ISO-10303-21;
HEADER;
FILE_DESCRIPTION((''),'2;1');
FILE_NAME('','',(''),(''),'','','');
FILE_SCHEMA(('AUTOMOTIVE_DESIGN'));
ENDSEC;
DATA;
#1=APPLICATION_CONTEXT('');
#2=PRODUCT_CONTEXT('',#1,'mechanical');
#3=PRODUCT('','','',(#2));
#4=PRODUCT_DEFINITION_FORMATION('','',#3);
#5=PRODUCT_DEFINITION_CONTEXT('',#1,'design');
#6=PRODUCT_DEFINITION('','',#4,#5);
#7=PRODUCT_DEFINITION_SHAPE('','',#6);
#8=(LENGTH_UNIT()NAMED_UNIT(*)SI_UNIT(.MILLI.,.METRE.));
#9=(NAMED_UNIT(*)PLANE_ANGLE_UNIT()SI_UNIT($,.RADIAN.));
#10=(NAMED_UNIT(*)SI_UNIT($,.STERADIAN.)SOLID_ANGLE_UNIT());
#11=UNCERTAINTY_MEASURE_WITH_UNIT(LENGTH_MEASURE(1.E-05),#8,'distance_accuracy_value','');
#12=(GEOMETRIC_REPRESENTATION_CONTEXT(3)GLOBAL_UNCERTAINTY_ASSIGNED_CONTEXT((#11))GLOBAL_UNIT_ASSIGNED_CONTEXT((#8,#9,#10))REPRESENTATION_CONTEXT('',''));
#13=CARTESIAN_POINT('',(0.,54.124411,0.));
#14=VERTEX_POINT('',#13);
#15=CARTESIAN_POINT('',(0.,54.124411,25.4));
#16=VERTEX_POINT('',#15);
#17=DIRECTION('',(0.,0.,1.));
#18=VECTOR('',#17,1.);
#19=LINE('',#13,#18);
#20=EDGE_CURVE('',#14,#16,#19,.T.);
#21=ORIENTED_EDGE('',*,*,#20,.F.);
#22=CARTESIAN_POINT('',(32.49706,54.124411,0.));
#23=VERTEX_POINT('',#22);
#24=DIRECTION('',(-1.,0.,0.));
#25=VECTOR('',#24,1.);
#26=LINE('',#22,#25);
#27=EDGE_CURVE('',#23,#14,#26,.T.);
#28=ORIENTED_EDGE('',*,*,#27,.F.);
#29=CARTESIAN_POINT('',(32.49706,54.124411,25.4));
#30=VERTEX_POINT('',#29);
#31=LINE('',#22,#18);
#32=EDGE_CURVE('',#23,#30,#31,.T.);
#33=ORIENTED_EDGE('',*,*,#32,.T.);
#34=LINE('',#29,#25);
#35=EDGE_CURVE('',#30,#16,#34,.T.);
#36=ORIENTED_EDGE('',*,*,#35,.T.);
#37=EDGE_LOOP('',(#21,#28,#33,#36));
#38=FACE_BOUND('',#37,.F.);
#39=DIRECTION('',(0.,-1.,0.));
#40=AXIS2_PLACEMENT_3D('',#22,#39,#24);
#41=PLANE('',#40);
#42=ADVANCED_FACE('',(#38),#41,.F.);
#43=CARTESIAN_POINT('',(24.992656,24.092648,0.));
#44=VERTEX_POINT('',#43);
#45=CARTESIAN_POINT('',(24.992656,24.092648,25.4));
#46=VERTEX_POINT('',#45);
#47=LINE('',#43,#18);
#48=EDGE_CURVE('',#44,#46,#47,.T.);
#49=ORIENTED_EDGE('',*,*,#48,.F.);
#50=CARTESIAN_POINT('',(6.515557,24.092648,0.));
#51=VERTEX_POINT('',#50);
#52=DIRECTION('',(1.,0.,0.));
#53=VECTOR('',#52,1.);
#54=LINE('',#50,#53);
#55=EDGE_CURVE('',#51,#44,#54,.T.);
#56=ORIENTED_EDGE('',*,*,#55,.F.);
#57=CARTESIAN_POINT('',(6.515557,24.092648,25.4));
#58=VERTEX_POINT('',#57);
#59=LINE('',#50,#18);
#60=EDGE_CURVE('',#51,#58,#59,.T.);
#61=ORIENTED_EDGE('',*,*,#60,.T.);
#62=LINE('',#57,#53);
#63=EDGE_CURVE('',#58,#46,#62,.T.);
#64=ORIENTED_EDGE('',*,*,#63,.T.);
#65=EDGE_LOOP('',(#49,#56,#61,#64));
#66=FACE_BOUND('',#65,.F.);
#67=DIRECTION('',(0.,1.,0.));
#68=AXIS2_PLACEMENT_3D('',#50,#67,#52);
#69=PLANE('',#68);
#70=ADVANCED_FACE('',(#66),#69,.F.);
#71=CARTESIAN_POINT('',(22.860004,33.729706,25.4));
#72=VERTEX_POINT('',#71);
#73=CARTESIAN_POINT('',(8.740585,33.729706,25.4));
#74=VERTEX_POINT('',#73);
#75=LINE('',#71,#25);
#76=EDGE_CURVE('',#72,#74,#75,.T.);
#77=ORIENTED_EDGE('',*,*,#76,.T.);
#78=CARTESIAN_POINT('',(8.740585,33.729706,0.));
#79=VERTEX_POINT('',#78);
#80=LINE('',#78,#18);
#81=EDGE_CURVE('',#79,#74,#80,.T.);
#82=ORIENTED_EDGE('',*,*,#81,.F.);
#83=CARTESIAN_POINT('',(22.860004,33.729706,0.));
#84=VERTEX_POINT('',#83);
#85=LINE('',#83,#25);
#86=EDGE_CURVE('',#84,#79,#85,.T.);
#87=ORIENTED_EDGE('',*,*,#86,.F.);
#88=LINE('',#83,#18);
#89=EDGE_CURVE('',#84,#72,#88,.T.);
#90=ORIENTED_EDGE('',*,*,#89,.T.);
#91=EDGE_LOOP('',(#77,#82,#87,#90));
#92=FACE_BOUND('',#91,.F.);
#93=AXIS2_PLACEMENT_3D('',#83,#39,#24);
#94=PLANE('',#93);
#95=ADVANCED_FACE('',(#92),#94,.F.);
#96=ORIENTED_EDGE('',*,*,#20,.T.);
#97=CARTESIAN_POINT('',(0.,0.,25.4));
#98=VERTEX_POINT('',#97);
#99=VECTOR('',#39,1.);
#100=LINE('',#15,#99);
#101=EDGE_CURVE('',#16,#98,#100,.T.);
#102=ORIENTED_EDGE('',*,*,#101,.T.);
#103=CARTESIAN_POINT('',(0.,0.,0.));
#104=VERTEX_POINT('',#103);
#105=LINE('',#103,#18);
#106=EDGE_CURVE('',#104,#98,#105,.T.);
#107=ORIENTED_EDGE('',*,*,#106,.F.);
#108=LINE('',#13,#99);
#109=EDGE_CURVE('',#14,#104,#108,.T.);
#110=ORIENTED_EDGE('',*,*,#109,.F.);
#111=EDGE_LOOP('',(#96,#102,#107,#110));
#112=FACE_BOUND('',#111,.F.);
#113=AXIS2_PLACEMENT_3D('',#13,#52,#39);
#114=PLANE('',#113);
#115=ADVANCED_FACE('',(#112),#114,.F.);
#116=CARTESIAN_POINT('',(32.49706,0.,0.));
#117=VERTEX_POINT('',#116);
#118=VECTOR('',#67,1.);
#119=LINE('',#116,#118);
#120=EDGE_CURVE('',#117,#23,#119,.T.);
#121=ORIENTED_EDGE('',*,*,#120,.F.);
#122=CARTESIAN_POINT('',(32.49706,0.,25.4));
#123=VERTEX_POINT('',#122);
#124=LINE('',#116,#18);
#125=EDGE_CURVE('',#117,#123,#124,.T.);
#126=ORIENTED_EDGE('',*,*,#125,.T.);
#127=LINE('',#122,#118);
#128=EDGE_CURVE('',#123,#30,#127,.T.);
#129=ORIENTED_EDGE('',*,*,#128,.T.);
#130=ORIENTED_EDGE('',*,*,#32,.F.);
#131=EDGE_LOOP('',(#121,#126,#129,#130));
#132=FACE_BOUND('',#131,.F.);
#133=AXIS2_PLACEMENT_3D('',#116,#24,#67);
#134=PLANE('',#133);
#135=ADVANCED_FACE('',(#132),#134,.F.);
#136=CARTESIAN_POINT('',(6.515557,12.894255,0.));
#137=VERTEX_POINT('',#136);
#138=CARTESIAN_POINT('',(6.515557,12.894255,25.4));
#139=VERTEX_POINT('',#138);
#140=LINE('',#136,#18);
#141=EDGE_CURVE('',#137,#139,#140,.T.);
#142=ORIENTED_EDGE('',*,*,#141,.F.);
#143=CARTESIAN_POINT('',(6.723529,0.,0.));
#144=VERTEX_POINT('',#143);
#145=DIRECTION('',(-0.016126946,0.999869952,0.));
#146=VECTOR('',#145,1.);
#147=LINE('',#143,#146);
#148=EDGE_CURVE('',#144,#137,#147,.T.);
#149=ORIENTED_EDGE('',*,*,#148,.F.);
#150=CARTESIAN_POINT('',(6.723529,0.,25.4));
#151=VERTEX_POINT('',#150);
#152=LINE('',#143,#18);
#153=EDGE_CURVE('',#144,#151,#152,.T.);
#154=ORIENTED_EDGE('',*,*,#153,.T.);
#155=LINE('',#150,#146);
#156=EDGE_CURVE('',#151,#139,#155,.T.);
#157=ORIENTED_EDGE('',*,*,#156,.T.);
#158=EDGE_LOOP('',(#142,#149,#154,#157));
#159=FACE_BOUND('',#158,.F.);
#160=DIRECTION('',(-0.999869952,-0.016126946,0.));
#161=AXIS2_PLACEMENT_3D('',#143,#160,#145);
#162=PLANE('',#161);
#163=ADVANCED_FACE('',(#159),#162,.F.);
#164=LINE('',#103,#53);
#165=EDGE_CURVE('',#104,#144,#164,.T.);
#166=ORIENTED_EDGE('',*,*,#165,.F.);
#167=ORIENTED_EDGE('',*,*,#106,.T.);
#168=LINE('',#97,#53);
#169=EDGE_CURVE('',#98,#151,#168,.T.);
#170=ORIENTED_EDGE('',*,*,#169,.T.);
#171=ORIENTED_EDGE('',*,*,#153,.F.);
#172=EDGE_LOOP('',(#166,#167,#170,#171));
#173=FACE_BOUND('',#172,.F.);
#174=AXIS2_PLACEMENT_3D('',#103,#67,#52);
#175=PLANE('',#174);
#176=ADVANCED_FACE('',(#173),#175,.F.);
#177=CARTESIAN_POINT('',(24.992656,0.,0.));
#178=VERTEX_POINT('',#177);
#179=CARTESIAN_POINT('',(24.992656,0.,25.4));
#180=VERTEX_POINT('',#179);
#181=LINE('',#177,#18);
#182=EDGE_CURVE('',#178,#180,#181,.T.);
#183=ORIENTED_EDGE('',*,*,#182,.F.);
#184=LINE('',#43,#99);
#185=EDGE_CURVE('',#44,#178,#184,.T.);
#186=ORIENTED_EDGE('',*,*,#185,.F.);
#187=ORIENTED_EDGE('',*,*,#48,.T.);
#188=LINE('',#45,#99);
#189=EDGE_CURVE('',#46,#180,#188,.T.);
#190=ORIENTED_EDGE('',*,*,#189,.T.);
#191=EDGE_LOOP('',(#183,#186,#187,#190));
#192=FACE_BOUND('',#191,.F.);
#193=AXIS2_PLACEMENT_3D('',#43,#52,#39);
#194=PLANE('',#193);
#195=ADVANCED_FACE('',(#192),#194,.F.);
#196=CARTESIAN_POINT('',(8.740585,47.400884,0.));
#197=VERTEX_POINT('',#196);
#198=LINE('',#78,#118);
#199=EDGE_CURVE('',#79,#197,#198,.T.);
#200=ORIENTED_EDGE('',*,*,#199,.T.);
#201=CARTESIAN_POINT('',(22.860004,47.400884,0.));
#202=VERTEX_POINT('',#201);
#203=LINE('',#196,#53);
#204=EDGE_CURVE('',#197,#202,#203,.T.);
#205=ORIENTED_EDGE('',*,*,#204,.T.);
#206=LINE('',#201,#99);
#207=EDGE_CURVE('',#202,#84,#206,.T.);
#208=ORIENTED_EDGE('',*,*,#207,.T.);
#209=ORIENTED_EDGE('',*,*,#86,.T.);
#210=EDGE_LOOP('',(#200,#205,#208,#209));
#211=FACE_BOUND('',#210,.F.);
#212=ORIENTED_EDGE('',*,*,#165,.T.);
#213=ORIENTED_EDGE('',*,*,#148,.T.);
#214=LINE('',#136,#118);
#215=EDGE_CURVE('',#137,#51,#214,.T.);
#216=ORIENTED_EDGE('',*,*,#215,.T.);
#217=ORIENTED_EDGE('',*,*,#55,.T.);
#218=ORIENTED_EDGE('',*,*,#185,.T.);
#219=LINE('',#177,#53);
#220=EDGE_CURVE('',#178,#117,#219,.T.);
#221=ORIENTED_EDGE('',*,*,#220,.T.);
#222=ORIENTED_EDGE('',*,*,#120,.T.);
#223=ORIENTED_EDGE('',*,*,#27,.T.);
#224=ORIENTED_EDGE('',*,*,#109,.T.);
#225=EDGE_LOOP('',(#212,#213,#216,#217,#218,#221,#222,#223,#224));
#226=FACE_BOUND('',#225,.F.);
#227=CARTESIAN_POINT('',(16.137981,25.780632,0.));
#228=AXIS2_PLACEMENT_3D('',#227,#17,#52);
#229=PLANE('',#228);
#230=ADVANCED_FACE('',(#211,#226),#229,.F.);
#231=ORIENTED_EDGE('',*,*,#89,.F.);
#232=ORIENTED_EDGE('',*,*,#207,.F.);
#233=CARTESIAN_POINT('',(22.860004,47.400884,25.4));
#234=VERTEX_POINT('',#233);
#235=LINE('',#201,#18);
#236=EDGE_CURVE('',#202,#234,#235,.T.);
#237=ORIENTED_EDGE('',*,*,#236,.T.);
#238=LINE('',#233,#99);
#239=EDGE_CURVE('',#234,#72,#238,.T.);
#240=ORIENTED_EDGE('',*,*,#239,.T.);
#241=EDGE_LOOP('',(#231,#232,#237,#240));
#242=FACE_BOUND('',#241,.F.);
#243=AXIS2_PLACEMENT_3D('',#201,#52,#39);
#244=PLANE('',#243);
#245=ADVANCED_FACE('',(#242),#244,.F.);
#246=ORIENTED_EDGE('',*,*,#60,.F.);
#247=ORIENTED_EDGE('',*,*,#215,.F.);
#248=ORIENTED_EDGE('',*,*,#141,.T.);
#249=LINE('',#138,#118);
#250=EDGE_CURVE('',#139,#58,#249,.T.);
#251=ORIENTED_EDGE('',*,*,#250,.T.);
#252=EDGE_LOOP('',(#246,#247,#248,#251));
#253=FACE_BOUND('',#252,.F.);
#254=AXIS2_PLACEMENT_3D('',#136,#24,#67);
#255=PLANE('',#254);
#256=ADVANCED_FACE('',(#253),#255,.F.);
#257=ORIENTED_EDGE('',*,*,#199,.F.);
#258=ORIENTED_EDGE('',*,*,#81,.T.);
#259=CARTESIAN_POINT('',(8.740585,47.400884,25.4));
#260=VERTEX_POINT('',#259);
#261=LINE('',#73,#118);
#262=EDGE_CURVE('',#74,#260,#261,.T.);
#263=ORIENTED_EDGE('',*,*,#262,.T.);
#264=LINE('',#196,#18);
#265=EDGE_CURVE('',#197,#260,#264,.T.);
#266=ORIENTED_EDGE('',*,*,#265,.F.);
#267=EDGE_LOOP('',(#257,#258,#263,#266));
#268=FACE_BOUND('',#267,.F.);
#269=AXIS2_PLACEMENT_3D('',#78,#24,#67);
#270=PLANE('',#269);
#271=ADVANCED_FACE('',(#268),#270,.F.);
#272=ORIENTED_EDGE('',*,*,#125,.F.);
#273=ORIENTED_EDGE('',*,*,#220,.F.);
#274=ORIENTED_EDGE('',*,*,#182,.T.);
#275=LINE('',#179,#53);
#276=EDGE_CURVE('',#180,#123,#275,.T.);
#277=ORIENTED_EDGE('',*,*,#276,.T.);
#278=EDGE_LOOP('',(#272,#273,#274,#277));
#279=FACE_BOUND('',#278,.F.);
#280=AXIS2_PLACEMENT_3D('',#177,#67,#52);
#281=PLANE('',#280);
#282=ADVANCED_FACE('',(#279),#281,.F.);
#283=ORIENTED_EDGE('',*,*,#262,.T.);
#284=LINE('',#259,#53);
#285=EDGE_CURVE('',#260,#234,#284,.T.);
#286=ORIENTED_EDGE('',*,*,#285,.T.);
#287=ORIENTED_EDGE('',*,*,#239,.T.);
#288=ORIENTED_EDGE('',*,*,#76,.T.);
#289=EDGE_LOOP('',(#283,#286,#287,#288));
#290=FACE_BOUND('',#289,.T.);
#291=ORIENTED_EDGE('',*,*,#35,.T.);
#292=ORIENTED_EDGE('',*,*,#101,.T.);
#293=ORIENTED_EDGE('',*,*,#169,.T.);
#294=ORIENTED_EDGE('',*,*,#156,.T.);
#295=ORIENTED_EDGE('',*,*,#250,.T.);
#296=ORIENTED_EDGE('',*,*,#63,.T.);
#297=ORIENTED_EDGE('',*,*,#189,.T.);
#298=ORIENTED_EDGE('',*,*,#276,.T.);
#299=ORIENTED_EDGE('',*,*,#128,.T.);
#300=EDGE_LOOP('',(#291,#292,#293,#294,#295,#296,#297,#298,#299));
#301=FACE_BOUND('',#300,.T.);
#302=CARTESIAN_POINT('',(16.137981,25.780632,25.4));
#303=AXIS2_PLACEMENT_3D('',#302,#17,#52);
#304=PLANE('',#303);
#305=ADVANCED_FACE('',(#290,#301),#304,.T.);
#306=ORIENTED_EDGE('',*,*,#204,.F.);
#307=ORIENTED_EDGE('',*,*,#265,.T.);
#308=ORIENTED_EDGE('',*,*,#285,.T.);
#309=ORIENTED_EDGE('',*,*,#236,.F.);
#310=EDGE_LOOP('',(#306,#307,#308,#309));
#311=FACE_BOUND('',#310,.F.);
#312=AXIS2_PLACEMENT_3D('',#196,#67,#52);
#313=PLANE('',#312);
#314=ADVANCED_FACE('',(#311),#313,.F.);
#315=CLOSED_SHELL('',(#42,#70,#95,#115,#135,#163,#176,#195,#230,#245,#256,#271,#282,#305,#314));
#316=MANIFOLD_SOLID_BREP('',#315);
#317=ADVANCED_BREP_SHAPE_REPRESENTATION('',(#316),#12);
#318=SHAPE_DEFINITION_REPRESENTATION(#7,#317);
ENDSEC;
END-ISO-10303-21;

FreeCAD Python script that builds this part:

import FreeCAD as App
import Part
import Sketcher
from FreeCAD import Vector
Q = App.Units.Quantity


def add_polygon(sketch, points):
    """Adds a closed chain of lines whose ends are joined by coincident constraints."""
    first, n = sketch.GeometryCount, len(points)
    for a, b in zip(points, points[1:] + points[:1]):
        sketch.addGeometry(Part.LineSegment(App.Vector(*a, 0), App.Vector(*b, 0)), False)
    for i in range(n):
        sketch.addConstraint(Sketcher.Constraint("Coincident", first + i, 2, first + (i + 1) % n, 1))

doc = App.newDocument("Part")
body = doc.addObject("PartDesign::Body", "Body")

# Sketch on XY plane
sketch1 = doc.addObject("Sketcher::SketchObject", "Sketch")
body.addObject(sketch1)
sketch1.AttachmentSupport = (doc.XY_Plane, [""])
sketch1.MapMode = "FlatFace"
add_polygon(sketch1, [(0, 0), (7, 0), (7, 13), (7, 24), (25, 24), (25, 0), (32, 0), (32, 54), (0, 54)])  # lines 0-8
add_polygon(sketch1, [(23, 34), (9, 34), (9, 47), (23, 47)])  # lines 9-12
sketch1.addConstraint([
    Sketcher.Constraint("Horizontal", 0),
    Sketcher.Constraint("Vertical", 2),
    Sketcher.Constraint("Horizontal", 3),
    Sketcher.Constraint("Vertical", 4),
    Sketcher.Constraint("Horizontal", 5),
    Sketcher.Constraint("Vertical", 6),
    Sketcher.Constraint("Horizontal", 7),
    Sketcher.Constraint("Vertical", 8),
    Sketcher.Constraint("Horizontal", 9),
    Sketcher.Constraint("Vertical", 10),
    Sketcher.Constraint("Horizontal", 11),
    Sketcher.Constraint("Vertical", 12),
    Sketcher.Constraint("Coincident", 8, 2, -1, 1),
    Sketcher.Constraint("PointOnObject", 4, 2, -1),
    Sketcher.Constraint("DistanceX", -1, 1, 11, 2, Q("0.9000002 in")),
    Sketcher.Constraint("DistanceX", 3, 1, 3, 2, 18.477099),
    Sketcher.Constraint("DistanceX", 0, 1, 0, 2, 6.723529),
    Sketcher.Constraint("DistanceX", 7, 2, 7, 1, 32.49706),
    Sketcher.Constraint("DistanceX", 9, 2, 9, 1, 14.119419),
    Sketcher.Constraint("DistanceY", 4, 2, 4, 1, 24.092648),
    Sketcher.Constraint("DistanceY", 6, 1, 6, 2, 54.124411),
    Sketcher.Constraint("DistanceX", 5, 1, 5, 2, 7.504404),
    Sketcher.Constraint("DistanceY", 2, 1, 2, 2, 11.198393),
    Sketcher.Constraint("DistanceY", 10, 1, 10, 2, 13.671178),
    Sketcher.Constraint("DistanceY", 1, 2, 9, 2, 20.835451),
])
pad1 = doc.addObject("PartDesign::Pad", "Pad")
body.addObject(pad1)
pad1.Profile = sketch1
pad1.Length = Q("1 in")

doc.recompute()
